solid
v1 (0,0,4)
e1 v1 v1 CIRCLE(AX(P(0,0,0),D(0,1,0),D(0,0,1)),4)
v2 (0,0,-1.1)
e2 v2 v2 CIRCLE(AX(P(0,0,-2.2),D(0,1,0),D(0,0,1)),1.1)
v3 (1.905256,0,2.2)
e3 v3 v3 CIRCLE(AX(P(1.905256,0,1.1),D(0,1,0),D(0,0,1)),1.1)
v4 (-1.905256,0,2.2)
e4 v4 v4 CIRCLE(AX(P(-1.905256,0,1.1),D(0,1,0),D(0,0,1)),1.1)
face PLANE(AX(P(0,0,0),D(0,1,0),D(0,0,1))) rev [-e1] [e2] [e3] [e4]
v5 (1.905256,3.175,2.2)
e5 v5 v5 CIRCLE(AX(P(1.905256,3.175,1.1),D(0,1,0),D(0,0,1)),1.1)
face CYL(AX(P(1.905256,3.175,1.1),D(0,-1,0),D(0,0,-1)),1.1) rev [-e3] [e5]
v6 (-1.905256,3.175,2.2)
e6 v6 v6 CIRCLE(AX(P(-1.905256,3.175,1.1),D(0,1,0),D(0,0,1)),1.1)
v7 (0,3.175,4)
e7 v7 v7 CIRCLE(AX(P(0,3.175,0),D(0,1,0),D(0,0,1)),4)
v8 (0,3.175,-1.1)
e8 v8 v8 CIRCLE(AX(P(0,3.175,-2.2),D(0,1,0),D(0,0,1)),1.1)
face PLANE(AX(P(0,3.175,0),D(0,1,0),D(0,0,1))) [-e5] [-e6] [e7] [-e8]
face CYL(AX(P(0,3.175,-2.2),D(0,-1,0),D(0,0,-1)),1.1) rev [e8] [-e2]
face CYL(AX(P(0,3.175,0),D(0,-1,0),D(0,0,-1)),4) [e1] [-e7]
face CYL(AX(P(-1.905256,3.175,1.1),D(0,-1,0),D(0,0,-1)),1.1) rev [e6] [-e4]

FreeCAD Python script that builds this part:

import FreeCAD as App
import Part
import Sketcher
from FreeCAD import Vector
Q = App.Units.Quantity

doc = App.newDocument("Part")
params = doc.addObject("Spreadsheet::Sheet", "Params")
for row, (alias, value) in enumerate([
    ("sketch1_diameter", "8 mm"),
    ("sketch1_diameter2", "2.2 mm"),
    ("pad1_length", "3.175 mm"),
], start=1):
    params.set(f"A{row}", alias)
    params.set(f"B{row}", "=" + value)
    params.setAlias(f"B{row}", alias)

body = doc.addObject("PartDesign::Body", "Body")

# Sketch on XZ plane
sketch1 = doc.addObject("Sketcher::SketchObject", "Sketch")
body.addObject(sketch1)
sketch1.AttachmentSupport = (doc.XZ_Plane, [""])
sketch1.MapMode = "FlatFace"
sketch1.addGeometry([
    Part.Circle(Vector(0, 0, 0), Vector(0, 0, 1), 4),
    Part.Circle(Vector(0, -2.2, 0), Vector(0, 0, 1), 1.1),
    Part.Circle(Vector(-1.9, 1.1, 0), Vector(0, 0, 1), 1.1),
    Part.Circle(Vector(1.9, 1.1, 0), Vector(0, 0, 1), 1.1),
], False)
sketch1.addConstraint([
    Sketcher.Constraint("Coincident", 0, 3, -1, 1),
    Sketcher.Constraint("Equal", 1, 2),
    Sketcher.Constraint("Equal", 2, 3),
    Sketcher.Constraint("Symmetric", 2, 3, 3, 3, -2),
    Sketcher.Constraint("PointOnObject", 1, 3, -2),
    Sketcher.Constraint("Diameter", 0, Q("8 mm")),
    Sketcher.Constraint("Diameter", 1, Q("2.2 mm")),
    Sketcher.Constraint("DistanceY", 1, 3, -1, 1, Q("2.2 mm")),
    Sketcher.Constraint("DistanceY", -1, 1, 2, 3, Q("1.1 mm")),
    Sketcher.Constraint("DistanceX", 2, 3, 3, 3, Q("3.810512 mm")),
])
sketch1.setExpression("Constraints[5]", "Params.sketch1_diameter")
sketch1.setExpression("Constraints[6]", "Params.sketch1_diameter2")
pad1 = doc.addObject("PartDesign::Pad", "Pad")
body.addObject(pad1)
pad1.Profile = sketch1
pad1.setExpression("Length", "Params.pad1_length")
pad1.Reversed = True

doc.recompute()
